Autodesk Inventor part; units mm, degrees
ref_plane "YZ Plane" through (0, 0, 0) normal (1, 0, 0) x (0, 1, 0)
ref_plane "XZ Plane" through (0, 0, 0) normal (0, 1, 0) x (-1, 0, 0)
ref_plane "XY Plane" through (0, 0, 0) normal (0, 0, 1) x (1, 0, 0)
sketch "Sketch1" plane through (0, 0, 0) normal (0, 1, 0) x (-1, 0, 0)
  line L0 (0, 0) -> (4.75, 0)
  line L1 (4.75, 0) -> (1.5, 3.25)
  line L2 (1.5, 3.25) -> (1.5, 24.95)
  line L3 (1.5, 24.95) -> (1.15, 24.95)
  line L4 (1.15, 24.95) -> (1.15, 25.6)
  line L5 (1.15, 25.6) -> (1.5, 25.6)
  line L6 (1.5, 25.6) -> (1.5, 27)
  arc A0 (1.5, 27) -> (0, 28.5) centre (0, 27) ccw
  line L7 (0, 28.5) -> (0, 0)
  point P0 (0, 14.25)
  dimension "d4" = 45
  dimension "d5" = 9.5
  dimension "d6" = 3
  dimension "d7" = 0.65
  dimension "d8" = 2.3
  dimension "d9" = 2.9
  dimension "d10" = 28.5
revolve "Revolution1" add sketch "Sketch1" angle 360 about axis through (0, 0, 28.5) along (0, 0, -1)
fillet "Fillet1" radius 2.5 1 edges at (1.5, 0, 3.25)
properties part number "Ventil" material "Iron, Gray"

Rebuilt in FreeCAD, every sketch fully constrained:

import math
import FreeCAD as App
import Part
import Sketcher
Q = App.Units.Quantity


def edges_at(feature, points):
    """Names of the edges that pass closest to the given points."""
    edges = feature.Shape.Edges
    near = lambda p: min(range(len(edges)), key=lambda i: edges[i].distToShape(Part.Vertex(*p))[0])
    return sorted({f"Edge{near(p) + 1}" for p in points})

doc = App.newDocument("Part")
params = doc.addObject("Spreadsheet::Sheet", "Params")
for row, (alias, value) in enumerate([
    ("sketch1_radius", "1.5 mm"),
    ("sketch1_height", "28.5 mm"),
    ("sketch1_height2", "0.65 mm"),
    ("sketch1_height3", "21.7 mm"),
    ("sketch1_width", "0.35 mm"),
    ("revolution_angle", "360 deg"),
    ("fillet_radius", "2.5 mm"),
], start=1):
    params.set(f"A{row}", alias)
    params.set(f"B{row}", "=" + value)
    params.setAlias(f"B{row}", alias)

body = doc.addObject("PartDesign::Body", "Body")

# Sketch on XZ plane
sketch1 = body.newObject("Sketcher::SketchObject", "Sketch")
sketch1.AttachmentSupport = (doc.getObject("XZ_Plane"), [""])
sketch1.MapMode = "FlatFace"
sketch1.addGeometry([
    Part.LineSegment(App.Vector(0, 28.5, 0), App.Vector(0, 0, 0)),  # 0
    Part.LineSegment(App.Vector(0, 0, 0), App.Vector(-4.75, 0, 0)),  # 1
    Part.LineSegment(App.Vector(-4.75, 0, 0), App.Vector(-1.5, 3.25, 0)),  # 2
    Part.LineSegment(App.Vector(-1.5, 3.25, 0), App.Vector(-1.5, 24.95, 0)),  # 3
    Part.LineSegment(App.Vector(-1.5, 24.95, 0), App.Vector(-1.15, 24.95, 0)),  # 4
    Part.LineSegment(App.Vector(-1.15, 24.95, 0), App.Vector(-1.15, 25.6, 0)),  # 5
    Part.LineSegment(App.Vector(-1.15, 25.6, 0), App.Vector(-1.5, 25.6, 0)),  # 6
    Part.LineSegment(App.Vector(-1.5, 25.6, 0), App.Vector(-1.5, 27, 0)),  # 7
    Part.ArcOfCircle(Part.Circle(App.Vector(0, 27, 0), App.Vector(0, 0, 1), 1.5), math.radians(90), math.radians(180)),  # 8
], False)
sketch1.addConstraint([
    Sketcher.Constraint("Coincident", 0, 2, 1, 1),
    Sketcher.Constraint("Coincident", 1, 2, 2, 1),
    Sketcher.Constraint("Coincident", 2, 2, 3, 1),
    Sketcher.Constraint("Coincident", 3, 2, 4, 1),
    Sketcher.Constraint("Coincident", 4, 2, 5, 1),
    Sketcher.Constraint("Coincident", 5, 2, 6, 1),
    Sketcher.Constraint("Coincident", 6, 2, 7, 1),
    Sketcher.Constraint("Tangent", 7, 2, 8, 2),
    Sketcher.Constraint("Coincident", 8, 1, 0, 1),
    Sketcher.Constraint("Vertical", 0),
    Sketcher.Constraint("Horizontal", 1),
    Sketcher.Constraint("Vertical", 3),
    Sketcher.Constraint("Horizontal", 4),
    Sketcher.Constraint("Vertical", 5),
    Sketcher.Constraint("Horizontal", 6),
    Sketcher.Constraint("Vertical", 7),
    Sketcher.Constraint("Coincident", 0, 2, -1, 1),
    Sketcher.Constraint("PointOnObject", 8, 3, -2),
    Sketcher.Constraint("Vertical", 3, 2, 6, 2),
    Sketcher.Constraint("Radius", 8, Q("1.5 mm")),
    Sketcher.Constraint("Angle", 2, Q("45 deg")),
    Sketcher.Constraint("DistanceY", 0, 2, 0, 1, Q("28.5 mm")),
    Sketcher.Constraint("DistanceY", 5, 1, 5, 2, Q("0.65 mm")),
    Sketcher.Constraint("DistanceY", 5, 2, 8, 1, Q("2.9 mm")),
    Sketcher.Constraint("DistanceY", 3, 1, 3, 2, Q("21.7 mm")),
    Sketcher.Constraint("DistanceX", 4, 1, 4, 2, Q("0.35 mm")),
])
sketch1.setExpression("Constraints[19]", "Params.sketch1_radius")
sketch1.setExpression("Constraints[21]", "Params.sketch1_height")
sketch1.setExpression("Constraints[22]", "Params.sketch1_height2")
sketch1.setExpression("Constraints[24]", "Params.sketch1_height3")
sketch1.setExpression("Constraints[25]", "Params.sketch1_width")
revolution = body.newObject("PartDesign::Revolution", "Revolution")
revolution.Profile = sketch1
revolution.ReferenceAxis = (sketch1, ["V_Axis"])
revolution.setExpression("Angle", "Params.revolution_angle")
doc.recompute()

fillet = body.newObject("PartDesign::Fillet", "Fillet")
fillet.Base = (revolution, edges_at(revolution, [(1.5, 0, 3.25)]))
fillet.setExpression("Radius", "Params.fillet_radius")

doc.recompute()
